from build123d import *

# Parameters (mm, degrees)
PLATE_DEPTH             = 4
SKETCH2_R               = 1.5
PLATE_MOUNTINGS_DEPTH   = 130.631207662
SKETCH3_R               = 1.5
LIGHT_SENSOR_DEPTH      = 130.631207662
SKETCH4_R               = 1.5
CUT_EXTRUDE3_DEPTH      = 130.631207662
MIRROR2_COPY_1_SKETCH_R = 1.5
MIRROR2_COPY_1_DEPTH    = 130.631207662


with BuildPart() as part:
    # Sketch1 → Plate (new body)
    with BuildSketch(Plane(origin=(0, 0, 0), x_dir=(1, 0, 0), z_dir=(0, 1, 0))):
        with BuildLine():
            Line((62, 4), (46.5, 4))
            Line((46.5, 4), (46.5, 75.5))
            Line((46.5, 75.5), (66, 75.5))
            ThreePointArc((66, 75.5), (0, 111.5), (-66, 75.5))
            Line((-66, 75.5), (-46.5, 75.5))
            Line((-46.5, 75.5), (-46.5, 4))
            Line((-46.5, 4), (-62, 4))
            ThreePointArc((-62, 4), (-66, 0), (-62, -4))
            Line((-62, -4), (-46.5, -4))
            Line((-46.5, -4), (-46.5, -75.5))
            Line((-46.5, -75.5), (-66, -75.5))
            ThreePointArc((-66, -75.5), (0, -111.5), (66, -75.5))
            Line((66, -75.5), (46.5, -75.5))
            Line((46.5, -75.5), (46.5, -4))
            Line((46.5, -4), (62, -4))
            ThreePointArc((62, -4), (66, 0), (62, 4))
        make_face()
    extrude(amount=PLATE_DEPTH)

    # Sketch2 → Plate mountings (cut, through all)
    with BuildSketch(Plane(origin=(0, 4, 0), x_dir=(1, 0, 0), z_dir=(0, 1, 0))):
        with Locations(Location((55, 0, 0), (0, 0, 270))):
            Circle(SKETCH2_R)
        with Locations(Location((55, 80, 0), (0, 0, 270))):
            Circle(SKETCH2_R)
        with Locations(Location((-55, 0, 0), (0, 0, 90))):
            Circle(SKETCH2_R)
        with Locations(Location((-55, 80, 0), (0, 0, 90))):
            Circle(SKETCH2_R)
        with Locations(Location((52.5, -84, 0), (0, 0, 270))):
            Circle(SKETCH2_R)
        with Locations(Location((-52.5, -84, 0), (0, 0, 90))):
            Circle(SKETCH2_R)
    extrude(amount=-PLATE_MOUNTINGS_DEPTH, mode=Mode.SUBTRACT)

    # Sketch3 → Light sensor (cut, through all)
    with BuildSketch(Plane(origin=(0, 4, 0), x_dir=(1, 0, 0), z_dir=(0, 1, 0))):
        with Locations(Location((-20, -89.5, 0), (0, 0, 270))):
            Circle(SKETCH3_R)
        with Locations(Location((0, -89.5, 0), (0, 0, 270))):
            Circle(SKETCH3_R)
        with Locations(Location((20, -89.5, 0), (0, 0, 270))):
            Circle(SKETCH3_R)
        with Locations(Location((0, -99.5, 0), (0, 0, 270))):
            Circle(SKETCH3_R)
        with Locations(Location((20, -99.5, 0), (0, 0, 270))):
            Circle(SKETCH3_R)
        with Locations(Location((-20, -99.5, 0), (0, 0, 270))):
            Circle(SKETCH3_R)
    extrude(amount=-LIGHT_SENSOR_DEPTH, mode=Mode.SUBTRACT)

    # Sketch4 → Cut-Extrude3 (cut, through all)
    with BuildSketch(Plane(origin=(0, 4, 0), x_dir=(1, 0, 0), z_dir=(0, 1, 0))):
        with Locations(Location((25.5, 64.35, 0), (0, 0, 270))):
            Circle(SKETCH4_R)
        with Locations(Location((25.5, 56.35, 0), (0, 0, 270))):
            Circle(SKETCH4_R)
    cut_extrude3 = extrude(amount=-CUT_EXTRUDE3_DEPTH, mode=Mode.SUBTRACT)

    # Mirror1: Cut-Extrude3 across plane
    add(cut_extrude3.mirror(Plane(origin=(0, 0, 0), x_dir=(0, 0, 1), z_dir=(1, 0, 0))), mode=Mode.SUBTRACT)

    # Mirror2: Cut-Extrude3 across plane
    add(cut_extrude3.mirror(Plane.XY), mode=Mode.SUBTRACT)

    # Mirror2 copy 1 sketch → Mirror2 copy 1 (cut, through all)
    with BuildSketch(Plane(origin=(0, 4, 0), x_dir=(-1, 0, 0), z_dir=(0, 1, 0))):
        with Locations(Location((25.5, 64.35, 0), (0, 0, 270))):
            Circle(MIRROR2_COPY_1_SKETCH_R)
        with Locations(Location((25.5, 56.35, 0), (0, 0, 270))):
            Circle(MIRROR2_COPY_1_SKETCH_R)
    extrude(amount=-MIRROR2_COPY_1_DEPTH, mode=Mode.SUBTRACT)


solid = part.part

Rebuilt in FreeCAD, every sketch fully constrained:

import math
import FreeCAD as App
import Part
import Sketcher
Q = App.Units.Quantity

doc = App.newDocument("Part")
body = doc.addObject("PartDesign::Body", "Body")

sketch1 = body.newObject("Sketcher::SketchObject", "Sketch")
sketch1.AttachmentSupport = (doc.getObject("XZ_Plane"), [""])
sketch1.MapMode = "FlatFace"
sketch1.addGeometry([
    Part.LineSegment(App.Vector(62, -4, 0), App.Vector(46.5, -4, 0)),
    Part.LineSegment(App.Vector(46.5, -4, 0), App.Vector(46.5, -75.5, 0)),
    Part.LineSegment(App.Vector(46.5, -75.5, 0), App.Vector(66, -75.5, 0)),
    Part.ArcOfCircle(Part.Circle(App.Vector(0, -33, 0), App.Vector(0, 0, 1), 78.5), math.radians(-147), math.radians(-33)),
    Part.LineSegment(App.Vector(-66, -75.5, 0), App.Vector(-46.5, -75.5, 0)),
    Part.LineSegment(App.Vector(-46.5, -75.5, 0), App.Vector(-46.5, -4, 0)),
    Part.LineSegment(App.Vector(-46.5, -4, 0), App.Vector(-62, -4, 0)),
    Part.ArcOfCircle(Part.Circle(App.Vector(-62, 0, 0), App.Vector(0, 0, 1), 4), math.radians(90), math.radians(270)),
    Part.LineSegment(App.Vector(-62, 4, 0), App.Vector(-46.5, 4, 0)),
    Part.LineSegment(App.Vector(-46.5, 4, 0), App.Vector(-46.5, 75.5, 0)),
    Part.LineSegment(App.Vector(-46.5, 75.5, 0), App.Vector(-66, 75.5, 0)),
    Part.ArcOfCircle(Part.Circle(App.Vector(0, 33, 0), App.Vector(0, 0, 1), 78.5), math.radians(33), math.radians(147)),
    Part.LineSegment(App.Vector(66, 75.5, 0), App.Vector(46.5, 75.5, 0)),
    Part.LineSegment(App.Vector(46.5, 75.5, 0), App.Vector(46.5, 4, 0)),
    Part.LineSegment(App.Vector(46.5, 4, 0), App.Vector(62, 4, 0)),
    Part.ArcOfCircle(Part.Circle(App.Vector(62, 0, 0), App.Vector(0, 0, 1), 4), math.radians(-90), math.radians(90)),
], False)
sketch1.addConstraint([
    Sketcher.Constraint("Coincident", 0, 2, 1, 1),
    Sketcher.Constraint("Coincident", 1, 2, 2, 1),
    Sketcher.Constraint("Coincident", 2, 2, 3, 2),
    Sketcher.Constraint("Coincident", 3, 1, 4, 1),
    Sketcher.Constraint("Coincident", 4, 2, 5, 1),
    Sketcher.Constraint("Coincident", 5, 2, 6, 1),
    Sketcher.Constraint("Tangent", 6, 2, 7, 2),
    Sketcher.Constraint("Tangent", 7, 1, 8, 1),
    Sketcher.Constraint("Coincident", 8, 2, 9, 1),
    Sketcher.Constraint("Coincident", 9, 2, 10, 1),
    Sketcher.Constraint("Coincident", 10, 2, 11, 2),
    Sketcher.Constraint("Coincident", 11, 1, 12, 1),
    Sketcher.Constraint("Coincident", 12, 2, 13, 1),
    Sketcher.Constraint("Coincident", 13, 2, 14, 1),
    Sketcher.Constraint("Tangent", 14, 2, 15, 2),
    Sketcher.Constraint("Tangent", 15, 1, 0, 1),
    Sketcher.Constraint("Horizontal", 0),
    Sketcher.Constraint("Vertical", 1),
    Sketcher.Constraint("Horizontal", 2),
    Sketcher.Constraint("Horizontal", 4),
    Sketcher.Constraint("Vertical", 5),
    Sketcher.Constraint("Horizontal", 6),
    Sketcher.Constraint("Horizontal", 8),
    Sketcher.Constraint("Vertical", 9),
    Sketcher.Constraint("Horizontal", 10),
    Sketcher.Constraint("Horizontal", 12),
    Sketcher.Constraint("Vertical", 13),
    Sketcher.Constraint("Horizontal", 14),
    Sketcher.Constraint("Equal", 3, 11),
    Sketcher.Constraint("Equal", 7, 15),
    Sketcher.Constraint("Symmetric", 3, 3, 11, 3, -1, 1),
    Sketcher.Constraint("Symmetric", 7, 3, 15, 3, -1, 1),
    Sketcher.Constraint("Symmetric", 1, 2, 9, 2, -1, 1),
    Sketcher.Constraint("Symmetric", 4, 2, 12, 2, -1, 1),
    Sketcher.Constraint("Symmetric", 2, 2, 3, 1, -2),
    Sketcher.Constraint("Symmetric", 0, 2, 5, 2, -2),
    Sketcher.Constraint("Radius", 7, Q("4 mm")),
    Sketcher.Constraint("Radius", 3, Q("78.5 mm")),
    Sketcher.Constraint("DistanceX", 0, 2, 0, 1, Q("15.5 mm")),
    Sketcher.Constraint("DistanceX", 2, 1, 2, 2, Q("19.5 mm")),
    Sketcher.Constraint("DistanceY", 1, 2, 1, 1, Q("71.5 mm")),
    Sketcher.Constraint("DistanceY", 3, 3, -1, 1, Q("33 mm")),
])
pad1 = body.newObject("PartDesign::Pad", "Pad")
pad1.Profile = sketch1
pad1.Length = 4
pad1.Reversed = True

sketch2 = body.newObject("Sketcher::SketchObject", "Sketch001")
sketch2.AttachmentSupport = (doc.getObject("XZ_Plane"), [""])
sketch2.MapMode = "FlatFace"
sketch2.AttachmentOffset = App.Placement(App.Vector(0, 0, -4), App.Rotation())
sketch2.addGeometry([
    Part.Circle(App.Vector(55, 0, 0), App.Vector(0, 0, 1), 1.5),
    Part.Circle(App.Vector(55, -80, 0), App.Vector(0, 0, 1), 1.5),
    Part.Circle(App.Vector(-55, 0, 0), App.Vector(0, 0, 1), 1.5),
    Part.Circle(App.Vector(-55, -80, 0), App.Vector(0, 0, 1), 1.5),
    Part.Circle(App.Vector(52.5, 84, 0), App.Vector(0, 0, 1), 1.5),
    Part.Circle(App.Vector(-52.5, 84, 0), App.Vector(0, 0, 1), 1.5),
], False)
sketch2.addConstraint([
    Sketcher.Constraint("Equal", 0, 1),
    Sketcher.Constraint("Equal", 1, 2),
    Sketcher.Constraint("Equal", 2, 3),
    Sketcher.Constraint("Equal", 3, 4),
    Sketcher.Constraint("Equal", 4, 5),
    Sketcher.Constraint("Symmetric", 0, 3, 2, 3, -1, 1),
    Sketcher.Constraint("Symmetric", 1, 3, 3, 3, -2),
    Sketcher.Constraint("Symmetric", 4, 3, 5, 3, -2),
    Sketcher.Constraint("PointOnObject", 0, 3, -1),
    Sketcher.Constraint("Vertical", 0, 3, 1, 3),
    Sketcher.Constraint("Diameter", 0, Q("3 mm")),
    Sketcher.Constraint("DistanceX", -1, 1, 0, 3, Q("55 mm")),
    Sketcher.Constraint("DistanceY", 1, 3, -1, 1, Q("80 mm")),
    Sketcher.Constraint("DistanceY", -1, 1, 4, 3, Q("84 mm")),
    Sketcher.Constraint("DistanceX", 5, 3, 4, 3, Q("105 mm")),
])
pocket1 = body.newObject("PartDesign::Pocket", "Pocket")
pocket1.Profile = sketch2
pocket1.Type = "ThroughAll"
pocket1.Reversed = True

sketch3 = body.newObject("Sketcher::SketchObject", "Sketch002")
sketch3.AttachmentSupport = (doc.getObject("XZ_Plane"), [""])
sketch3.MapMode = "FlatFace"
sketch3.AttachmentOffset = App.Placement(App.Vector(0, 0, -4), App.Rotation())
sketch3.addGeometry([
    Part.Circle(App.Vector(-20, 89.5, 0), App.Vector(0, 0, 1), 1.5),
    Part.Circle(App.Vector(0, 89.5, 0), App.Vector(0, 0, 1), 1.5),
    Part.Circle(App.Vector(20, 89.5, 0), App.Vector(0, 0, 1), 1.5),
    Part.Circle(App.Vector(0, 99.5, 0), App.Vector(0, 0, 1), 1.5),
    Part.Circle(App.Vector(20, 99.5, 0), App.Vector(0, 0, 1), 1.5),
    Part.Circle(App.Vector(-20, 99.5, 0), App.Vector(0, 0, 1), 1.5),
], False)
sketch3.addConstraint([
    Sketcher.Constraint("Equal", 0, 1),
    Sketcher.Constraint("Equal", 1, 2),
    Sketcher.Constraint("Equal", 2, 3),
    Sketcher.Constraint("Equal", 3, 4),
    Sketcher.Constraint("Equal", 4, 5),
    Sketcher.Constraint("Symmetric", 0, 3, 2, 3, -2),
    Sketcher.Constraint("Symmetric", 4, 3, 5, 3, -2),
    Sketcher.Constraint("PointOnObject", 1, 3, -2),
    Sketcher.Constraint("PointOnObject", 3, 3, -2),
    Sketcher.Constraint("Horizontal", 0, 3, 1, 3),
    Sketcher.Constraint("Horizontal", 3, 3, 4, 3),
    Sketcher.Constraint("Vertical", 2, 3, 4, 3),
    Sketcher.Constraint("Diameter", 0, Q("3 mm")),
    Sketcher.Constraint("DistanceX", 0, 3, -1, 1, Q("20 mm")),
    Sketcher.Constraint("DistanceY", 1, 3, 3, 3, Q("10 mm")),
    Sketcher.Constraint("DistanceY", -1, 1, 0, 3, Q("89.5 mm")),
])
pocket2 = body.newObject("PartDesign::Pocket", "Pocket001")
pocket2.Profile = sketch3
pocket2.Type = "ThroughAll"
pocket2.Reversed = True

sketch4 = body.newObject("Sketcher::SketchObject", "Sketch003")
sketch4.AttachmentSupport = (doc.getObject("XZ_Plane"), [""])
sketch4.MapMode = "FlatFace"
sketch4.AttachmentOffset = App.Placement(App.Vector(0, 0, -4), App.Rotation())
sketch4.addGeometry([
    Part.Circle(App.Vector(25.5, -64.3, 0), App.Vector(0, 0, 1), 1.5),
    Part.Circle(App.Vector(25.5, -56.4, 0), App.Vector(0, 0, 1), 1.5),
], False)
sketch4.addConstraint([
    Sketcher.Constraint("Equal", 0, 1),
    Sketcher.Constraint("Vertical", 0, 3, 1, 3),
    Sketcher.Constraint("Diameter", 0, Q("3 mm")),
    Sketcher.Constraint("DistanceY", 0, 3, 1, 3, Q("8 mm")),
    Sketcher.Constraint("DistanceX", -1, 1, 0, 3, Q("25.5 mm")),
    Sketcher.Constraint("DistanceY", 0, 3, -1, 1, Q("64.35 mm")),
])
pocket3 = body.newObject("PartDesign::Pocket", "Pocket002")
pocket3.Profile = sketch4
pocket3.Type = "ThroughAll"
pocket3.Reversed = True
doc.recompute()

mirrored = body.newObject("PartDesign::Mirrored", "Mirrored")
mirrored.Originals = [pocket3]
mirrored.MirrorPlane = (doc.getObject("YZ_Plane"), [""])
body.Tip = mirrored
doc.recompute()

mirrored2 = body.newObject("PartDesign::Mirrored", "Mirrored001")
mirrored2.Originals = [pocket3]
mirrored2.MirrorPlane = (doc.getObject("XY_Plane"), [""])
body.Tip = mirrored2

sketch5 = body.newObject("Sketcher::SketchObject", "Sketch004")
sketch5.AttachmentSupport = (doc.getObject("XZ_Plane"), [""])
sketch5.MapMode = "FlatFace"
sketch5.AttachmentOffset = App.Placement(App.Vector(0, 0, -4), App.Rotation())
sketch5.addGeometry([
    Part.Circle(App.Vector(-25.5, 64.3, 0), App.Vector(0, 0, 1), 1.5),
    Part.Circle(App.Vector(-25.5, 56.4, 0), App.Vector(0, 0, 1), 1.5),
], False)
sketch5.addConstraint([
    Sketcher.Constraint("Equal", 0, 1),
    Sketcher.Constraint("Vertical", 0, 3, 1, 3),
    Sketcher.Constraint("Diameter", 0, Q("3 mm")),
    Sketcher.Constraint("DistanceY", 1, 3, 0, 3, Q("8 mm")),
    Sketcher.Constraint("DistanceX", 0, 3, -1, 1, Q("25.5 mm")),
    Sketcher.Constraint("DistanceY", -1, 1, 0, 3, Q("64.35 mm")),
])
pocket4 = body.newObject("PartDesign::Pocket", "Pocket003")
pocket4.Profile = sketch5
pocket4.Type = "ThroughAll"
pocket4.Reversed = True

doc.recompute()
